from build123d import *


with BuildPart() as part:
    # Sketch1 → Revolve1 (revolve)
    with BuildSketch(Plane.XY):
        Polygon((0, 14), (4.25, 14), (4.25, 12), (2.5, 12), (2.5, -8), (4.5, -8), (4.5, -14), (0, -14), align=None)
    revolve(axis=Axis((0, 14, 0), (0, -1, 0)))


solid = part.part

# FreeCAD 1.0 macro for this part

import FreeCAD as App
import Part
import Sketcher


def add_polygon(sketch, points):
    """Adds a closed chain of lines whose ends are joined by coincident constraints."""
    first, n = sketch.GeometryCount, len(points)
    for a, b in zip(points, points[1:] + points[:1]):
        sketch.addGeometry(Part.LineSegment(App.Vector(*a, 0), App.Vector(*b, 0)), False)
    for i in range(n):
        sketch.addConstraint(Sketcher.Constraint("Coincident", first + i, 2, first + (i + 1) % n, 1))

doc = App.newDocument("Part")
body = doc.addObject("PartDesign::Body", "Body")

# Sketch on XY plane
sketch1 = body.newObject("Sketcher::SketchObject", "Sketch")
sketch1.AttachmentSupport = (doc.getObject("XY_Plane"), [""])
sketch1.MapMode = "FlatFace"
add_polygon(sketch1, [(4.25, 14), (0, 14), (0, -14), (4.5, -14), (4.5, -8), (2.5, -8), (2.5, 12), (4.25, 12)])  # lines 0-7
sketch1.addConstraint([
    Sketcher.Constraint("Horizontal", 0),
    Sketcher.Constraint("Vertical", 1),
    Sketcher.Constraint("Horizontal", 2),
    Sketcher.Constraint("Vertical", 3),
    Sketcher.Constraint("Horizontal", 4),
    Sketcher.Constraint("Vertical", 5),
    Sketcher.Constraint("Horizontal", 6),
    Sketcher.Constraint("Vertical", 7),
    Sketcher.Constraint("Symmetric", 0, 2, 1, 2, -1, 1),
    Sketcher.Constraint("Equal", 4, 7),
    Sketcher.Constraint("DistanceX", 4, 2, 4, 1, 2.0),
    Sketcher.Constraint("DistanceY", 1, 2, 1, 1, 28.0),
    Sketcher.Constraint("DistanceY", 3, 1, 3, 2, 6.0),
    Sketcher.Constraint("DistanceX", 2, 1, 2, 2, 4.5),
    Sketcher.Constraint("DistanceX", 0, 2, 0, 1, 4.25),
])
revolution = body.newObject("PartDesign::Revolution", "Revolution")
revolution.Profile = sketch1
revolution.ReferenceAxis = (sketch1, ["V_Axis"])
revolution.Angle = 360

doc.recompute()
